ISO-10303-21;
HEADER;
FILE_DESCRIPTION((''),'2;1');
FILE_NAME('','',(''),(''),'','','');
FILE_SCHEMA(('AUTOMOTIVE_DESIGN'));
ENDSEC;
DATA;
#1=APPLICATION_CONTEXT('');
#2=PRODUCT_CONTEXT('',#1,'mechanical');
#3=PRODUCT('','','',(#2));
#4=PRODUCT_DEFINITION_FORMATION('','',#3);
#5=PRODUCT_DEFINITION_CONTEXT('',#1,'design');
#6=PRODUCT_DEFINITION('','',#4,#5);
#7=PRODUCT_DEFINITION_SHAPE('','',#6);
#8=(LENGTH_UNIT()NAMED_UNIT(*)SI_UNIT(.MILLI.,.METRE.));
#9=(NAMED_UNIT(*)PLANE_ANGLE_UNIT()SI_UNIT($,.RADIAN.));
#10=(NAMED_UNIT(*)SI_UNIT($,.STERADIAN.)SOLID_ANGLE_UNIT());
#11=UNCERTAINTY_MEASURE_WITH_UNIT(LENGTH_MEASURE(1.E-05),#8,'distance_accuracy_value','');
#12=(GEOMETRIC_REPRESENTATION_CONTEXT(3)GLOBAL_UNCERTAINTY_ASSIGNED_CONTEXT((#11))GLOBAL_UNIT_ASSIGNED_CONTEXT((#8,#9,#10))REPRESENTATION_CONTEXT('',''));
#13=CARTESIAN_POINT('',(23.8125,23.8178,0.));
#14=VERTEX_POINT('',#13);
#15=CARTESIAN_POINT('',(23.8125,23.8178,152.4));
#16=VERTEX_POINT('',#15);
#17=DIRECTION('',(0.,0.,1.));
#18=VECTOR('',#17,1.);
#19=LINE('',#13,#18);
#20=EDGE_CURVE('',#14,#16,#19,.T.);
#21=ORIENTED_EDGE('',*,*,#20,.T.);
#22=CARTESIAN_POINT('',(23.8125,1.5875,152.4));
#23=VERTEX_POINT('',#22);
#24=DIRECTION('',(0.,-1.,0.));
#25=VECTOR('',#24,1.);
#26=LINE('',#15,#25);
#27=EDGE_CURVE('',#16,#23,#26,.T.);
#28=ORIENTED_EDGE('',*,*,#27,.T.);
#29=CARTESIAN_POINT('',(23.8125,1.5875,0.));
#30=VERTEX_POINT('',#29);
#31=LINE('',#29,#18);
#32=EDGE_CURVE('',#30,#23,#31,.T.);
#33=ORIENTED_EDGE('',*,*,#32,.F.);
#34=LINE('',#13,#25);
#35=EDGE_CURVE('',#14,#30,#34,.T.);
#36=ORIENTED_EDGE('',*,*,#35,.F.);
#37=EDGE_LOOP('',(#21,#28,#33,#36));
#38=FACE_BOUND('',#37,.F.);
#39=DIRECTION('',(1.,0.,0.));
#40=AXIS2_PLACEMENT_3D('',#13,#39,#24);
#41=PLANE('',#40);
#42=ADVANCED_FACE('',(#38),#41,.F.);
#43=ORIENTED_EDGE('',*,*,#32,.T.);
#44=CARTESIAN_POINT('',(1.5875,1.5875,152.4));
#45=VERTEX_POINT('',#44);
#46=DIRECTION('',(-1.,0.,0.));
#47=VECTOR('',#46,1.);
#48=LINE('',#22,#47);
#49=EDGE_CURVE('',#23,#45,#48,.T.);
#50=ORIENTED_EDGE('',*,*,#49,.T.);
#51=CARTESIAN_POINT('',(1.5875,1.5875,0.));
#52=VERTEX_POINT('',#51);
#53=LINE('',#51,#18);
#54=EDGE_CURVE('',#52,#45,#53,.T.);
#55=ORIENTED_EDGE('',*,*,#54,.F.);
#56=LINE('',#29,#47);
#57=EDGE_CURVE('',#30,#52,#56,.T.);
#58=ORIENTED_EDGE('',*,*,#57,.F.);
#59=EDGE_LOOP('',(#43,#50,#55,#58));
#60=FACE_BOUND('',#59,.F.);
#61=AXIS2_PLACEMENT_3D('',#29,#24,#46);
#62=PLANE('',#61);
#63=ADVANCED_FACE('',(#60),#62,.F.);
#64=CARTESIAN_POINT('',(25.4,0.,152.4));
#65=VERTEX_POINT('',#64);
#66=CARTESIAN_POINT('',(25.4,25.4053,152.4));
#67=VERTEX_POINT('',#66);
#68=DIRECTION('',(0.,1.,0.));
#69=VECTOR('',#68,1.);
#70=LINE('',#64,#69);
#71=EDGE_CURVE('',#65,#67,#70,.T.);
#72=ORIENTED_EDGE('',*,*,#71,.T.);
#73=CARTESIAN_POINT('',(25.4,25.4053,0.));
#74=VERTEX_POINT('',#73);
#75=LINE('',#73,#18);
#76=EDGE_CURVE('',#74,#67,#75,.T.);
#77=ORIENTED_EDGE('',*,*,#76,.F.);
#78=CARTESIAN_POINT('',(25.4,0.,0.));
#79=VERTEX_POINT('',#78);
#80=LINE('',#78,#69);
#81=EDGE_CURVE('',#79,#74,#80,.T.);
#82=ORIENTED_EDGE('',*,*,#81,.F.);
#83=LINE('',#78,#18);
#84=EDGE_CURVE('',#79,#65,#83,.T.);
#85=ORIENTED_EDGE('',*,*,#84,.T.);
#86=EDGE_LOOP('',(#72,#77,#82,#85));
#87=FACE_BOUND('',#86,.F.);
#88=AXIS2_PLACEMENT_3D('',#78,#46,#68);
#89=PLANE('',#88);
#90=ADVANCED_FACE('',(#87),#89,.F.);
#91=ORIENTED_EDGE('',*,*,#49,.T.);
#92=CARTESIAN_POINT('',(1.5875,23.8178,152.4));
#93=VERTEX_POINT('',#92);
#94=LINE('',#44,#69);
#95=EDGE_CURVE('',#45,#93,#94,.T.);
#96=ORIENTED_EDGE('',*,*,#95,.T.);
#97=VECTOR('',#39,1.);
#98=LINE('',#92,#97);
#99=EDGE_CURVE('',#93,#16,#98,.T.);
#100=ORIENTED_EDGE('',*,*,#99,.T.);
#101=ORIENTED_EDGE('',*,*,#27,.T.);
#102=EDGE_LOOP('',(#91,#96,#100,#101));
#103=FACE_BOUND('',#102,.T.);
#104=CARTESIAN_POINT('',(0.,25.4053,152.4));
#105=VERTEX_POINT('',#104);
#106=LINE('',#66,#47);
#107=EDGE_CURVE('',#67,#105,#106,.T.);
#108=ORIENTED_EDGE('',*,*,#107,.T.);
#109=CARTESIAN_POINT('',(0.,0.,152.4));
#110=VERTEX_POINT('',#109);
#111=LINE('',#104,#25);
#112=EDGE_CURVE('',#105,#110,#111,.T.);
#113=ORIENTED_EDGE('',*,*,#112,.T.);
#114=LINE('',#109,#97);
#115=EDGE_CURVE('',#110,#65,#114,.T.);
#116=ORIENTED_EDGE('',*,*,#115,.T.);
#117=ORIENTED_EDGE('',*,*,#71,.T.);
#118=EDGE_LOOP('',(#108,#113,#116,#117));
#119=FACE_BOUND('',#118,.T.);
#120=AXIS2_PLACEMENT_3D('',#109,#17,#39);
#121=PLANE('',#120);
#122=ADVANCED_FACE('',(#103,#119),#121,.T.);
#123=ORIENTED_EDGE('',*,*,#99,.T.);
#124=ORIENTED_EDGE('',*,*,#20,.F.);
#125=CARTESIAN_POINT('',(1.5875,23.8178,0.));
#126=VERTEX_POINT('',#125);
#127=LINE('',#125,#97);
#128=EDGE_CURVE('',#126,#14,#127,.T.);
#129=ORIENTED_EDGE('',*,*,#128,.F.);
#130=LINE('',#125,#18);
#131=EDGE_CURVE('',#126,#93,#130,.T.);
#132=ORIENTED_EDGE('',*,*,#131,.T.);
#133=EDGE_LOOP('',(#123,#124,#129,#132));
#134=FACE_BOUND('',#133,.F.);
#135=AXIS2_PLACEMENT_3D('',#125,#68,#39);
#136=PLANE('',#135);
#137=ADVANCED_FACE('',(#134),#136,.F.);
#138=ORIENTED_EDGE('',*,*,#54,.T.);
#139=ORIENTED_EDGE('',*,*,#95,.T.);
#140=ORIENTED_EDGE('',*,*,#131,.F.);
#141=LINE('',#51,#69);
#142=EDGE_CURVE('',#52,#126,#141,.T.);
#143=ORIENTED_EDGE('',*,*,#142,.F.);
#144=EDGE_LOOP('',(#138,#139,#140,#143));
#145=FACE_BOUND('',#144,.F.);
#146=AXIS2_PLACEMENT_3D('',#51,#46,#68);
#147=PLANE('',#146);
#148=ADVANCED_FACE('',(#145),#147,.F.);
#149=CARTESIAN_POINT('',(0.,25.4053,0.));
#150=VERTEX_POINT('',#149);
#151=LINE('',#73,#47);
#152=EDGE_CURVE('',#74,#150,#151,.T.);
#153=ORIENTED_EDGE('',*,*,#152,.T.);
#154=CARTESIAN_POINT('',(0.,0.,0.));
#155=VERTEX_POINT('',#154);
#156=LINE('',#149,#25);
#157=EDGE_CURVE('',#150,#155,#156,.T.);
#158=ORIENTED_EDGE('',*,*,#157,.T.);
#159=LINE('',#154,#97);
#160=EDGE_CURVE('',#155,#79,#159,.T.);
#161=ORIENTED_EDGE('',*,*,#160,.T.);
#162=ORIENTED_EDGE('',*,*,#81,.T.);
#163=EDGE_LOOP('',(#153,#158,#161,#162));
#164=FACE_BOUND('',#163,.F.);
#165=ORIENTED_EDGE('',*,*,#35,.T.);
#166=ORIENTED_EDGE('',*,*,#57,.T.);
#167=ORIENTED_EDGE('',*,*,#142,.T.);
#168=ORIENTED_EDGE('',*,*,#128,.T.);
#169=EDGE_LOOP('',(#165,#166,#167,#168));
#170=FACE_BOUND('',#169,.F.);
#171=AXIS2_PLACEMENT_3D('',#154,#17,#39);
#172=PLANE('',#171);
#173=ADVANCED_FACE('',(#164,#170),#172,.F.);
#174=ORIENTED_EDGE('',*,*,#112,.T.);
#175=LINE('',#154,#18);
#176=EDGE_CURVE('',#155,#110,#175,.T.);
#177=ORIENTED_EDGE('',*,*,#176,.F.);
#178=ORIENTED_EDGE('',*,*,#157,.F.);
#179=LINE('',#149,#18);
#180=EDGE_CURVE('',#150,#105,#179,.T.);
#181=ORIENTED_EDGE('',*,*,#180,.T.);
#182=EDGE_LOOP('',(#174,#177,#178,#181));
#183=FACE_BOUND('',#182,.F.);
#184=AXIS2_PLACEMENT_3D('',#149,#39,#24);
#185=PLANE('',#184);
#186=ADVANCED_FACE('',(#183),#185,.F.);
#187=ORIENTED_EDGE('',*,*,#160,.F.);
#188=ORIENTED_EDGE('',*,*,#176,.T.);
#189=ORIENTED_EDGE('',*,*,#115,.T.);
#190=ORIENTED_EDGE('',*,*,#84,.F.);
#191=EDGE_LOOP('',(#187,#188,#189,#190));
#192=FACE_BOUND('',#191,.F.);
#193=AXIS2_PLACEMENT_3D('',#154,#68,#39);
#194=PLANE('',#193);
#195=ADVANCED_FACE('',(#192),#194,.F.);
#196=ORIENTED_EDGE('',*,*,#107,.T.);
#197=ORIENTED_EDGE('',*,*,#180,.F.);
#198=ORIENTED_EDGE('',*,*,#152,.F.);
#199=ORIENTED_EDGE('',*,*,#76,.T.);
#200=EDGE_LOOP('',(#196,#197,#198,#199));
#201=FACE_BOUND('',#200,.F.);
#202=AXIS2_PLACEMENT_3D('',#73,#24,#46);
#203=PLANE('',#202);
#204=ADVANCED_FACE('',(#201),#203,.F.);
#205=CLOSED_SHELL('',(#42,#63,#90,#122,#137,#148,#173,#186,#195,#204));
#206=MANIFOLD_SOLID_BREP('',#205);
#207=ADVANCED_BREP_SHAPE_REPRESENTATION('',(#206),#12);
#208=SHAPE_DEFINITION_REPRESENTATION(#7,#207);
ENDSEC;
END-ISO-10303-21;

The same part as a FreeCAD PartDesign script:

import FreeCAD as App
import Part
import Sketcher
from FreeCAD import Vector
Q = App.Units.Quantity

doc = App.newDocument("Part")
params = doc.addObject("Spreadsheet::Sheet", "Params")
for row, (alias, value) in enumerate([
    ("sketch1_width", "1 in"),
    ("sketch1_width2", "0.875 in"),
    ("pad1_length", "6 in"),
], start=1):
    params.set(f"A{row}", alias)
    params.set(f"B{row}", "=" + value)
    params.setAlias(f"B{row}", alias)

body = doc.addObject("PartDesign::Body", "Body")

sketch1 = body.newObject("Sketcher::SketchObject", "Sketch")
sketch1.AttachmentSupport = (doc.getObject("XY_Plane"), [""])
sketch1.MapMode = "FlatFace"
sketch1.addGeometry(Part.LineSegment(Vector(0, 25, 0), Vector(0, 0, 0)), False)
sketch1.addGeometry(Part.LineSegment(Vector(0, 0, 0), Vector(25, 0, 0)), False)
sketch1.addGeometry(Part.LineSegment(Vector(25, 0, 0), Vector(25, 25, 0)), False)
sketch1.addGeometry(Part.LineSegment(Vector(25, 25, 0), Vector(0, 25, 0)), False)
sketch1.addGeometry(Part.LineSegment(Vector(2, 2, 0), Vector(2, 24, 0)), False)
sketch1.addGeometry(Part.LineSegment(Vector(2, 24, 0), Vector(24, 24, 0)), False)
sketch1.addGeometry(Part.LineSegment(Vector(24, 24, 0), Vector(24, 2, 0)), False)
sketch1.addGeometry(Part.LineSegment(Vector(24, 2, 0), Vector(2, 2, 0)), False)
sketch1.addConstraint(Sketcher.Constraint("Coincident", 0, 2, 1, 1))
sketch1.addConstraint(Sketcher.Constraint("Coincident", 1, 2, 2, 1))
sketch1.addConstraint(Sketcher.Constraint("Coincident", 2, 2, 3, 1))
sketch1.addConstraint(Sketcher.Constraint("Coincident", 3, 2, 0, 1))
sketch1.addConstraint(Sketcher.Constraint("Coincident", 4, 2, 5, 1))
sketch1.addConstraint(Sketcher.Constraint("Coincident", 5, 2, 6, 1))
sketch1.addConstraint(Sketcher.Constraint("Coincident", 6, 2, 7, 1))
sketch1.addConstraint(Sketcher.Constraint("Coincident", 7, 2, 4, 1))
sketch1.addConstraint(Sketcher.Constraint("Vertical", 0))
sketch1.addConstraint(Sketcher.Constraint("Horizontal", 1))
sketch1.addConstraint(Sketcher.Constraint("Vertical", 2))
sketch1.addConstraint(Sketcher.Constraint("Horizontal", 3))
sketch1.addConstraint(Sketcher.Constraint("Vertical", 4))
sketch1.addConstraint(Sketcher.Constraint("Horizontal", 5))
sketch1.addConstraint(Sketcher.Constraint("Vertical", 6))
sketch1.addConstraint(Sketcher.Constraint("Horizontal", 7))
sketch1.addConstraint(Sketcher.Constraint("Coincident", 0, 2, -1, 1))
sketch1.addConstraint(Sketcher.Constraint("DistanceX", 1, 1, 1, 2, Q("1 in")))
sketch1.addConstraint(Sketcher.Constraint("DistanceX", 5, 1, 5, 2, Q("0.875 in")))
sketch1.addConstraint(Sketcher.Constraint("DistanceY", 0, 2, 0, 1, Q("1.0002 in")))
sketch1.addConstraint(Sketcher.Constraint("DistanceY", 4, 1, 4, 2, Q("0.8752 in")))
sketch1.addConstraint(Sketcher.Constraint("DistanceX", -1, 1, 4, 2, Q("0.0625 in")))
sketch1.addConstraint(Sketcher.Constraint("DistanceY", -1, 1, 6, 2, Q("0.0625 in")))
sketch1.setExpression("Constraints[17]", "Params.sketch1_width")
sketch1.setExpression("Constraints[18]", "Params.sketch1_width2")
pad1 = body.newObject("PartDesign::Pad", "Pad")
pad1.Profile = sketch1
pad1.setExpression("Length", "Params.pad1_length")

doc.recompute()
